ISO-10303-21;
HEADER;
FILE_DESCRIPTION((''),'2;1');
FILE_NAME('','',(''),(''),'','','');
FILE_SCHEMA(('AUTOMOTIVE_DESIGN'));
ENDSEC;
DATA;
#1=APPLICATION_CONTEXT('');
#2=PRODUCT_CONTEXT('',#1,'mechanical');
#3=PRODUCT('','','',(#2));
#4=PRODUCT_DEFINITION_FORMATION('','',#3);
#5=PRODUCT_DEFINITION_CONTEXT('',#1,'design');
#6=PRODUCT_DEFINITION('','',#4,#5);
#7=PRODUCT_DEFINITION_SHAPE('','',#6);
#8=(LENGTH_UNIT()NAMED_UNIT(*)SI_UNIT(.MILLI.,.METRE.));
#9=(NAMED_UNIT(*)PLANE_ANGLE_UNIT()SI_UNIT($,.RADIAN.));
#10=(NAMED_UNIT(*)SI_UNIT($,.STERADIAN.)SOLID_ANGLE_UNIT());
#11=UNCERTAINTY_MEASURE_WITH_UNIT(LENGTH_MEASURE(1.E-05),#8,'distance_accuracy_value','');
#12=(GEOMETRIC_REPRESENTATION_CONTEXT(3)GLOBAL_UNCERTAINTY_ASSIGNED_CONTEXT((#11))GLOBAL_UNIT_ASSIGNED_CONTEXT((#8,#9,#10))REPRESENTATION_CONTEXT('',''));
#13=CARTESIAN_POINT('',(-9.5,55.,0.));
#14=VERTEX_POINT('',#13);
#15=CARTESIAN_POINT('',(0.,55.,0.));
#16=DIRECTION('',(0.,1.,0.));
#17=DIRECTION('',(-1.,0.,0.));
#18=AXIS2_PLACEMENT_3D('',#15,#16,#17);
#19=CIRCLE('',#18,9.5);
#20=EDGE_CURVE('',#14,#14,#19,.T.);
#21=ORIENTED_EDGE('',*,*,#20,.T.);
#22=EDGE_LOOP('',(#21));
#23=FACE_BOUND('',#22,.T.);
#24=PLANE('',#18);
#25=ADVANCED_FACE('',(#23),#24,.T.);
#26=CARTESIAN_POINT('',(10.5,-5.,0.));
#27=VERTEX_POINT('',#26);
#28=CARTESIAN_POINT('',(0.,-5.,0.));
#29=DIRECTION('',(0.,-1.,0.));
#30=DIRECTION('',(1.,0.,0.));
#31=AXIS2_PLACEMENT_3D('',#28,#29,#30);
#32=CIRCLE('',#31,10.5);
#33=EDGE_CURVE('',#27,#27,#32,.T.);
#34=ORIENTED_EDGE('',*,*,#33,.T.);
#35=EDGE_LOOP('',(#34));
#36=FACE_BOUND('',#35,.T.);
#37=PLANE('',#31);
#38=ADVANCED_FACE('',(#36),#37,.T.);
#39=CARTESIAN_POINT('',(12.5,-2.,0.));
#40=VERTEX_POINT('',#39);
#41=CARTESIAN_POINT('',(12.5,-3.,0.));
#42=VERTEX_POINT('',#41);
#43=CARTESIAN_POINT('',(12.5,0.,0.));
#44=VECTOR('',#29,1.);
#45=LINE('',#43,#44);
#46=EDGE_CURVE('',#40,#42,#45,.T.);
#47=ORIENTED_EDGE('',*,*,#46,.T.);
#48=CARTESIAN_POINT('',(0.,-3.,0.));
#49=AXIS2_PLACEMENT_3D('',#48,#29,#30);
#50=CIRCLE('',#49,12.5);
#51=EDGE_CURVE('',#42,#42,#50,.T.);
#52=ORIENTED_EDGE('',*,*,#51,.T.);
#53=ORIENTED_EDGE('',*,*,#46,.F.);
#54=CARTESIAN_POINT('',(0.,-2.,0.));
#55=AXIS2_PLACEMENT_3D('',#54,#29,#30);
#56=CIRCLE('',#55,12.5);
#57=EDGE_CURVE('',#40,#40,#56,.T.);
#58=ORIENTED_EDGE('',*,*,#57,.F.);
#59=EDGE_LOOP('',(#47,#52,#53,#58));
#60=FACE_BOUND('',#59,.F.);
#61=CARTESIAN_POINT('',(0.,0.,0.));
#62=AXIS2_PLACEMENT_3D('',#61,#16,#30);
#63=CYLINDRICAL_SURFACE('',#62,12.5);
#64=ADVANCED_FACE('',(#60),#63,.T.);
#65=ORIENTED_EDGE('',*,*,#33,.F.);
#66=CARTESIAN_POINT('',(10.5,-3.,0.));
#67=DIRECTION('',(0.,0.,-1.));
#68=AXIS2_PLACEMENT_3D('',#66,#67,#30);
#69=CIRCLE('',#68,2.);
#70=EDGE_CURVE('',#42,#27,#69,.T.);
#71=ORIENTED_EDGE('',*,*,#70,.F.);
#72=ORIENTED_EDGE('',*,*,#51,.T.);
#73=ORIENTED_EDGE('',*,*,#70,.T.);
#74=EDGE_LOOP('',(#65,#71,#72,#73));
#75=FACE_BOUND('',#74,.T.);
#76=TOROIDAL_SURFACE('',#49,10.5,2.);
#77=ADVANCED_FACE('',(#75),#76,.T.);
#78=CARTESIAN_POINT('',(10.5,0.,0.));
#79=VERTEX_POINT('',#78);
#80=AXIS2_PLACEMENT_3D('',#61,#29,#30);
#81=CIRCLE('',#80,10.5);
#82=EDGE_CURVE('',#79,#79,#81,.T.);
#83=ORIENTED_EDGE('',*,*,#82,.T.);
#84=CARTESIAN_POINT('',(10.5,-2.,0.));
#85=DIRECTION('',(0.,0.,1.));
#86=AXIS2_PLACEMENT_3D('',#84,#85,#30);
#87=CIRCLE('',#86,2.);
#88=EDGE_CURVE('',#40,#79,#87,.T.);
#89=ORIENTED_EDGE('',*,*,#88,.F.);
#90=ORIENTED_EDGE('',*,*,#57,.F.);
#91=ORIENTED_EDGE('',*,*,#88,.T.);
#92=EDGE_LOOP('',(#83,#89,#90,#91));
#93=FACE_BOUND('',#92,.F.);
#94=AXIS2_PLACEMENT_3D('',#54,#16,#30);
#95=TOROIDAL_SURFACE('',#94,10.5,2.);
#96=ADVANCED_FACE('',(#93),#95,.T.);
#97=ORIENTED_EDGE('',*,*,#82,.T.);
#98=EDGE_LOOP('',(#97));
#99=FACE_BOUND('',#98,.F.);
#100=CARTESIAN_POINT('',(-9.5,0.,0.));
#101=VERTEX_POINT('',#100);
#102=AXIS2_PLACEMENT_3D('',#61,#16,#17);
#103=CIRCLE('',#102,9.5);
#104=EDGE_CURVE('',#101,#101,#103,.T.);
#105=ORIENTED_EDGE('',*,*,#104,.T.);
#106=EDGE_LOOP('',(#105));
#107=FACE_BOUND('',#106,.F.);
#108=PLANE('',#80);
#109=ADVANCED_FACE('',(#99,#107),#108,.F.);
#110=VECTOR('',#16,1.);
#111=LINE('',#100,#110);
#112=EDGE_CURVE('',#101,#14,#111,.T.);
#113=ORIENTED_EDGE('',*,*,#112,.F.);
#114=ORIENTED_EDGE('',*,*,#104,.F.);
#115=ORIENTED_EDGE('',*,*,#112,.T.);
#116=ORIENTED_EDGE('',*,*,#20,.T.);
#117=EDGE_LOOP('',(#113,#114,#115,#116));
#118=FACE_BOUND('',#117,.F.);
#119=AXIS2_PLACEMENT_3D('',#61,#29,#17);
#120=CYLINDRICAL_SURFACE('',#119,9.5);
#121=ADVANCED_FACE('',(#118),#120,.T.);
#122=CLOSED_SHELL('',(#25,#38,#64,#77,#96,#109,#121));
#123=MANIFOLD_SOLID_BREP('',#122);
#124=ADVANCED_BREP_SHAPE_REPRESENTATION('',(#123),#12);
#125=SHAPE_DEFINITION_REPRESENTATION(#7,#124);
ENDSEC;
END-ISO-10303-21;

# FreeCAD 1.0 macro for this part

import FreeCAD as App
import Part
import Sketcher
Q = App.Units.Quantity


def edges_at(feature, points):
    """Names of the edges that pass closest to the given points."""
    edges = feature.Shape.Edges
    near = lambda p: min(range(len(edges)), key=lambda i: edges[i].distToShape(Part.Vertex(*p))[0])
    return sorted({f"Edge{near(p) + 1}" for p in points})

doc = App.newDocument("Part")
body = doc.addObject("PartDesign::Body", "Body")

sketch1 = body.newObject("Sketcher::SketchObject", "Sketch")
sketch1.AttachmentSupport = (doc.getObject("XZ_Plane"), [""])
sketch1.MapMode = "FlatFace"
sketch1.addGeometry(Part.Circle(App.Vector(0, 0, 0), App.Vector(0, 0, 1), 9.5), False)
sketch1.addConstraint([
    Sketcher.Constraint("Coincident", 0, 3, -1, 1),
    Sketcher.Constraint("Diameter", 0, Q("19 mm")),
])
pad1 = body.newObject("PartDesign::Pad", "Pad")
pad1.Profile = sketch1
pad1.Length = 55
pad1.Reversed = True

sketch2 = body.newObject("Sketcher::SketchObject", "Sketch001")
sketch2.AttachmentSupport = (doc.getObject("XZ_Plane"), [""])
sketch2.MapMode = "FlatFace"
sketch2.addGeometry(Part.Circle(App.Vector(0, 0, 0), App.Vector(0, 0, 1), 12.5), False)
sketch2.addConstraint([
    Sketcher.Constraint("Coincident", 0, 3, -1, 1),
    Sketcher.Constraint("Diameter", 0, Q("25 mm")),
])
pad2 = body.newObject("PartDesign::Pad", "Pad001")
pad2.Profile = sketch2
pad2.Length = 5
doc.recompute()

fillet = body.newObject("PartDesign::Fillet", "Fillet")
fillet.Base = (pad2, edges_at(pad2, [(-12.5, 0, 0), (-12.5, -5, 0)]))
fillet.Radius = 2

doc.recompute()
